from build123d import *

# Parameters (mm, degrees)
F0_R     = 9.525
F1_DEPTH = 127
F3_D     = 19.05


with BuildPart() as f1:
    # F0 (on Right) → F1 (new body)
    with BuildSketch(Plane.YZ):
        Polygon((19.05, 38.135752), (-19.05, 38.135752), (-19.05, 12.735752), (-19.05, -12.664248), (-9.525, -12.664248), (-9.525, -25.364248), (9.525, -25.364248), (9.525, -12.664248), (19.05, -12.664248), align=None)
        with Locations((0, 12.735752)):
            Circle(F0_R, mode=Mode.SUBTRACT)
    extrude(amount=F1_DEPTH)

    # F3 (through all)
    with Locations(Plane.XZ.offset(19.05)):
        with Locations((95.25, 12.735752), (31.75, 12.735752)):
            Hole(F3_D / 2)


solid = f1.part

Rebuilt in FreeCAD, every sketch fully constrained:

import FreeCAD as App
import Part
import Sketcher
Q = App.Units.Quantity

doc = App.newDocument("Part")
body = doc.addObject("PartDesign::Body", "Body")

# Sketch on YZ plane
sketch1 = body.newObject("Sketcher::SketchObject", "Sketch")
sketch1.AttachmentSupport = (doc.getObject("YZ_Plane"), [""])
sketch1.MapMode = "FlatFace"
sketch1.addGeometry([
    Part.LineSegment(App.Vector(19.05, 38.135752, 0), App.Vector(-19.05, 38.135752, 0)),  # 0
    Part.LineSegment(App.Vector(-19.05, 38.135752, 0), App.Vector(-19.05, -12.664248, 0)),  # 1
    Part.LineSegment(App.Vector(-19.05, -12.664248, 0), App.Vector(-9.525, -12.664248, 0)),  # 2
    Part.LineSegment(App.Vector(-9.525, -12.664248, 0), App.Vector(-9.525, -25.364248, 0)),  # 3
    Part.LineSegment(App.Vector(-9.525, -25.364248, 0), App.Vector(9.525, -25.364248, 0)),  # 4
    Part.LineSegment(App.Vector(9.525, -25.364248, 0), App.Vector(9.525, -12.664248, 0)),  # 5
    Part.LineSegment(App.Vector(9.525, -12.664248, 0), App.Vector(19.05, -12.664248, 0)),  # 6
    Part.LineSegment(App.Vector(19.05, -12.664248, 0), App.Vector(19.05, 38.135752, 0)),  # 7
    Part.Circle(App.Vector(0, 12.735752, 0), App.Vector(0, 0, 1), 9.525),  # 8
], False)
sketch1.addConstraint([
    Sketcher.Constraint("Coincident", 0, 2, 1, 1),
    Sketcher.Constraint("Coincident", 1, 2, 2, 1),
    Sketcher.Constraint("Coincident", 2, 2, 3, 1),
    Sketcher.Constraint("Coincident", 3, 2, 4, 1),
    Sketcher.Constraint("Coincident", 4, 2, 5, 1),
    Sketcher.Constraint("Coincident", 5, 2, 6, 1),
    Sketcher.Constraint("Coincident", 6, 2, 7, 1),
    Sketcher.Constraint("Coincident", 7, 2, 0, 1),
    Sketcher.Constraint("Horizontal", 0),
    Sketcher.Constraint("Vertical", 1),
    Sketcher.Constraint("Horizontal", 2),
    Sketcher.Constraint("Vertical", 3),
    Sketcher.Constraint("Horizontal", 4),
    Sketcher.Constraint("Vertical", 5),
    Sketcher.Constraint("Horizontal", 6),
    Sketcher.Constraint("Vertical", 7),
    Sketcher.Constraint("Symmetric", 2, 2, 5, 2, -2),
    Sketcher.Constraint("PointOnObject", 8, 3, -2),
    Sketcher.Constraint("Equal", 2, 6),
    Sketcher.Constraint("Diameter", 8, Q("0.75 in")),
    Sketcher.Constraint("DistanceY", 1, 2, 1, 1, Q("2 in")),
    Sketcher.Constraint("DistanceX", 0, 2, 0, 1, Q("1.5 in")),
    Sketcher.Constraint("DistanceY", 3, 2, 3, 1, Q("0.5 in")),
    Sketcher.Constraint("DistanceY", 8, 3, 0, 2, Q("1 in")),
    Sketcher.Constraint("DistanceX", 4, 1, 4, 2, Q("0.75 in")),
    Sketcher.Constraint("DistanceY", -1, 1, 0, 2, Q("38.135752 mm")),
])
pad1 = body.newObject("PartDesign::Pad", "Pad")
pad1.Profile = sketch1
pad1.Length = Q("5 in")

# Sketch on XZ plane
sketch2 = body.newObject("Sketcher::SketchObject", "Sketch001")
sketch2.AttachmentSupport = (doc.getObject("XZ_Plane"), [""])
sketch2.MapMode = "FlatFace"
sketch2.AttachmentOffset = App.Placement(App.Vector(0, 0, 0.75 * 25.4), App.Rotation())
sketch2.addGeometry([
    Part.Circle(App.Vector(95.25, 12.735752, 0), App.Vector(0, 0, 1), 9.525),
    Part.Circle(App.Vector(31.75, 12.735752, 0), App.Vector(0, 0, 1), 9.525),
], False)
sketch2.addConstraint([
    Sketcher.Constraint("Equal", 0, 1),
    Sketcher.Constraint("Horizontal", 0, 3, 1, 3),
    Sketcher.Constraint("Diameter", 0, Q("0.75 in")),
    Sketcher.Constraint("DistanceX", 1, 3, 0, 3, Q("2.5 in")),
    Sketcher.Constraint("DistanceX", -1, 1, 0, 3, Q("3.75 in")),
    Sketcher.Constraint("DistanceY", -1, 1, 0, 3, Q("12.735752 mm")),
])
doc.recompute()
hole = body.newObject("PartDesign::Hole", "Hole")
hole.Profile = sketch2
hole.ThreadType = "None"
hole.Diameter = Q("0.75 in")
hole.DepthType = "ThroughAll"

doc.recompute()
